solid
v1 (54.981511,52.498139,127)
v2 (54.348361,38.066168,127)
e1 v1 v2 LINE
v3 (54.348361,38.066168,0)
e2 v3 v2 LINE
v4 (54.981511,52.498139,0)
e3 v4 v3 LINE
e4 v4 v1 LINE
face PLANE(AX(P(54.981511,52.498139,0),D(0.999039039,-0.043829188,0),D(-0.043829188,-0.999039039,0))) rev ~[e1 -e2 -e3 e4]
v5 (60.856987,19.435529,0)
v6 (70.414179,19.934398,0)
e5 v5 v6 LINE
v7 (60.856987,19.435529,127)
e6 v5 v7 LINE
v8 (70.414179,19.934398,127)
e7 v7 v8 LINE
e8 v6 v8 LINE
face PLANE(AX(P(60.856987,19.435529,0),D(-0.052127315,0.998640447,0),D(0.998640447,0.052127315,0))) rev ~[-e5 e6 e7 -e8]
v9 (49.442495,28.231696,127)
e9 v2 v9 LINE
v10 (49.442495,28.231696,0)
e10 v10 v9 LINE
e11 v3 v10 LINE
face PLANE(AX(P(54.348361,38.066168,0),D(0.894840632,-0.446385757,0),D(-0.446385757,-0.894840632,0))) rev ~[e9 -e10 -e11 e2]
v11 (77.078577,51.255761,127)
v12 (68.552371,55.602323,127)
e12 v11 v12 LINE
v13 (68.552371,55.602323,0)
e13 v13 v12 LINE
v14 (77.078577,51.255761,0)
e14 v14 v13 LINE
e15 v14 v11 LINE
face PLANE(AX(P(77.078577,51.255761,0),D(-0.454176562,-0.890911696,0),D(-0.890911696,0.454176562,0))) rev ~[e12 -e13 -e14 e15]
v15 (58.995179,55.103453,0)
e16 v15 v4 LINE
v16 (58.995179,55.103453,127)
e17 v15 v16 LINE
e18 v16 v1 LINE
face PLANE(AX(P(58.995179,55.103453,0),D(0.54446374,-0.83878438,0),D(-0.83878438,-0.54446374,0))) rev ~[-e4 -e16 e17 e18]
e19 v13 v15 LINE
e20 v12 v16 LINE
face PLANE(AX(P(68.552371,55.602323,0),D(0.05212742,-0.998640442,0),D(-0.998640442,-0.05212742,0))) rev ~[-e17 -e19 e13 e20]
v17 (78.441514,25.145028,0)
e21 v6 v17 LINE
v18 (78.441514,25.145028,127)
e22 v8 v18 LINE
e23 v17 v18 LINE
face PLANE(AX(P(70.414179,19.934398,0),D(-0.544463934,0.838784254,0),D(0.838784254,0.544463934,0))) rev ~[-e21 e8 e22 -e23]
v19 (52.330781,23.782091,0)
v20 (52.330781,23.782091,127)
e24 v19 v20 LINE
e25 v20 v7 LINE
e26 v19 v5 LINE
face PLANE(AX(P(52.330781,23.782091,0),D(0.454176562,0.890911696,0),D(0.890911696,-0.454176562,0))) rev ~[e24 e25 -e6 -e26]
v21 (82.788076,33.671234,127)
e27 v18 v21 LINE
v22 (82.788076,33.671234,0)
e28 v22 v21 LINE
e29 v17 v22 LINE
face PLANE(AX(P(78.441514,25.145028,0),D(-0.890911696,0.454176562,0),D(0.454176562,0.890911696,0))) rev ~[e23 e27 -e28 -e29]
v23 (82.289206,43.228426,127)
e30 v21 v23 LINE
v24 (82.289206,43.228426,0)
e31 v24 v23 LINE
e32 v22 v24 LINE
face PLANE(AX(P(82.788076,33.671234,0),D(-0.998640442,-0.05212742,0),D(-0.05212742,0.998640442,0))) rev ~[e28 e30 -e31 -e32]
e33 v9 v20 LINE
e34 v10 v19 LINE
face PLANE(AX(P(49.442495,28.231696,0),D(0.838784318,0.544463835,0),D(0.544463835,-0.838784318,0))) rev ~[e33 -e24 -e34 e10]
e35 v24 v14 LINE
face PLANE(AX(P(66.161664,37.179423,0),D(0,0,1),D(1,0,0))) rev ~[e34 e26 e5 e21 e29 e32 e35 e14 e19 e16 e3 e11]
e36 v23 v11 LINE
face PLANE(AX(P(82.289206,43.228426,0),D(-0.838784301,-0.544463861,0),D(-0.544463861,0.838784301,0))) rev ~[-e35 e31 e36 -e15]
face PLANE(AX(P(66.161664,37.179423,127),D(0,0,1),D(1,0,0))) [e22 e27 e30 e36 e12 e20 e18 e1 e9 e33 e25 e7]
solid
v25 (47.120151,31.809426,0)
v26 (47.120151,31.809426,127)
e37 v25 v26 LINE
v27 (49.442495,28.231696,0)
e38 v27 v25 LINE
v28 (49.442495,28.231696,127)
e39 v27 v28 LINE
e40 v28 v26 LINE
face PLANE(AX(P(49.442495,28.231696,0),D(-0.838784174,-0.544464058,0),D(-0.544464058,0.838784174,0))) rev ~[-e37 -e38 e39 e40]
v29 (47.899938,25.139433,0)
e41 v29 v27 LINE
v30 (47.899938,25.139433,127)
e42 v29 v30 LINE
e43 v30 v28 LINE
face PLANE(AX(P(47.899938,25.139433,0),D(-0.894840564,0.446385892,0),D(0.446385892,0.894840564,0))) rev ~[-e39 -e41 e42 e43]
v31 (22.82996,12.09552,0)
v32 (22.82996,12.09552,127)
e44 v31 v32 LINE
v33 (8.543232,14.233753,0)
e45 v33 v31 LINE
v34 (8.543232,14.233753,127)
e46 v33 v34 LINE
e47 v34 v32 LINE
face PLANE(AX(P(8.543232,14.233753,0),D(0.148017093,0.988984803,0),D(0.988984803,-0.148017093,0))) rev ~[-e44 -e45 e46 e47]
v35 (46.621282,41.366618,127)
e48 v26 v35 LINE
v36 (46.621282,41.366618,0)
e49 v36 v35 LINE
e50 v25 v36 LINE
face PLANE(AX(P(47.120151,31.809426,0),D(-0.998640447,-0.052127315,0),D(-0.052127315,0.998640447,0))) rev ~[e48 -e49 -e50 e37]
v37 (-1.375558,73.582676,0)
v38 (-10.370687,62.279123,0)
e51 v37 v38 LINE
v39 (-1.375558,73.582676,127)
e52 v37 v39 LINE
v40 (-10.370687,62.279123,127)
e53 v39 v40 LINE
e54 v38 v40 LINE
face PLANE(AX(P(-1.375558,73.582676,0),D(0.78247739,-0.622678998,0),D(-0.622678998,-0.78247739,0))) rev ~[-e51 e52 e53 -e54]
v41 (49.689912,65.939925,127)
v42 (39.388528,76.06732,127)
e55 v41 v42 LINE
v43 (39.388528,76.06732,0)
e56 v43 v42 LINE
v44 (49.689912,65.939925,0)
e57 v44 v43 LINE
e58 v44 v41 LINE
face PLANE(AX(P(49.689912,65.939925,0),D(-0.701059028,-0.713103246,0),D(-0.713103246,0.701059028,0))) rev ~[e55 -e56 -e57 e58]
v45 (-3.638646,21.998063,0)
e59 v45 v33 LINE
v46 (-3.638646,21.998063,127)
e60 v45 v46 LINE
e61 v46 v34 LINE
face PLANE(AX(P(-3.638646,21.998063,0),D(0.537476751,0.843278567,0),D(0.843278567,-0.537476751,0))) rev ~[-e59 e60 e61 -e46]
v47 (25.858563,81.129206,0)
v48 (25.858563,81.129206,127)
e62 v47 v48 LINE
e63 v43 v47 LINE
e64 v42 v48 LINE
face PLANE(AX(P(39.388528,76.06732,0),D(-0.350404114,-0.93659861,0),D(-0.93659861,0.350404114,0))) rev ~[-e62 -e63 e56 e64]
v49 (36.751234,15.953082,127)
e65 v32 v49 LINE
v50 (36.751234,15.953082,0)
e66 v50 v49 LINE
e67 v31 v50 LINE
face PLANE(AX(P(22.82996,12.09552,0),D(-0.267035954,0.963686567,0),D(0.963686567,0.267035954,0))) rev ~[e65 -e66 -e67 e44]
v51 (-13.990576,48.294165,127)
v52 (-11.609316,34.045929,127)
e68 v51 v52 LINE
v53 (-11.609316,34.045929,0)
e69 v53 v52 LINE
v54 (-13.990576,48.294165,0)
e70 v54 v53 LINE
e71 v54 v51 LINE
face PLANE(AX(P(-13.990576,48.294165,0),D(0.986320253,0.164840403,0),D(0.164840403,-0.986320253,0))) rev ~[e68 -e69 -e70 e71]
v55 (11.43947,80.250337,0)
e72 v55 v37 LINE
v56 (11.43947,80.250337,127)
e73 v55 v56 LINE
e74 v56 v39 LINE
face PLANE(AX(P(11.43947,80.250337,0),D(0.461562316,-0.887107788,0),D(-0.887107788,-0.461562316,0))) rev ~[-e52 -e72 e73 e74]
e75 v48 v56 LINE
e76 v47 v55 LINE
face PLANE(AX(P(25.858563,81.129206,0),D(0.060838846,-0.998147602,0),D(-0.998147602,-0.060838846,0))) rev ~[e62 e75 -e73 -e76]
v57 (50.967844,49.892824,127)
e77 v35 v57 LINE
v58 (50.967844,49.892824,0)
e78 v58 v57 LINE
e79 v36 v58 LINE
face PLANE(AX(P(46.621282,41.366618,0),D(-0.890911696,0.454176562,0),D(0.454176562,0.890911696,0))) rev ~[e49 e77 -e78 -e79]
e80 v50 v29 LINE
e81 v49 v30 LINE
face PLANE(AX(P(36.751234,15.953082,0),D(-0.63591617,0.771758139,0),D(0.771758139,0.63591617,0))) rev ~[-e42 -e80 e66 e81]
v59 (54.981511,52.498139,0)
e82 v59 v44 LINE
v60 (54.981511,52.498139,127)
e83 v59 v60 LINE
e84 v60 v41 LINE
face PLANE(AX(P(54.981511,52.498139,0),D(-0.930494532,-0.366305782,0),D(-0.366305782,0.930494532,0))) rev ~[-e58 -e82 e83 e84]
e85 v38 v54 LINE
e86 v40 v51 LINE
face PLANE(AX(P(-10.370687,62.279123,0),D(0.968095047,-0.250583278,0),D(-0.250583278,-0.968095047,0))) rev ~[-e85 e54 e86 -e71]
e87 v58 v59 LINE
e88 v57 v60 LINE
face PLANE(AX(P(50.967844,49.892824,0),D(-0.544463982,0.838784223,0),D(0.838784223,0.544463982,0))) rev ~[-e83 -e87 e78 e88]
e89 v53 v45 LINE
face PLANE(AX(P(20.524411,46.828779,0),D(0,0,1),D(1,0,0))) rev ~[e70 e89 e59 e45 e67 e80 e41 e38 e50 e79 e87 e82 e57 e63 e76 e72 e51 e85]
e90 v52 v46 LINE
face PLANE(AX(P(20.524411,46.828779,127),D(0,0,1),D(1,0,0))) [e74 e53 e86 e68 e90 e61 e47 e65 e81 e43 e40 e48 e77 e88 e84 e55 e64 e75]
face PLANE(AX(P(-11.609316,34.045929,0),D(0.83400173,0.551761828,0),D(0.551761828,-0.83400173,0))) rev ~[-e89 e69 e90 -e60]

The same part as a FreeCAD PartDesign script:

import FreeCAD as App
import Part
import Sketcher
Q = App.Units.Quantity

doc = App.newDocument("Part")
body = doc.addObject("PartDesign::Body", "Body")
body.AllowCompound = True

sketch1 = body.newObject("Sketcher::SketchObject", "Sketch")
sketch1.AttachmentSupport = (doc.getObject("XY_Plane"), [""])
sketch1.MapMode = "FlatFace"
sketch1.addGeometry(Part.LineSegment(App.Vector(36.751234, 15.953082, 0), App.Vector(47.899938, 25.139433, 0)), False)
sketch1.addGeometry(Part.LineSegment(App.Vector(47.899938, 25.139433, 0), App.Vector(49.442495, 28.231696, 0)), False)
sketch1.addGeometry(Part.LineSegment(App.Vector(49.442495, 28.231696, 0), App.Vector(47.120151, 31.809426, 0)), False)
sketch1.addGeometry(Part.LineSegment(App.Vector(47.120151, 31.809426, 0), App.Vector(46.621282, 41.366618, 0)), False)
sketch1.addGeometry(Part.LineSegment(App.Vector(46.621282, 41.366618, 0), App.Vector(50.967844, 49.892824, 0)), False)
sketch1.addGeometry(Part.LineSegment(App.Vector(50.967844, 49.892824, 0), App.Vector(54.981511, 52.498139, 0)), False)
sketch1.addGeometry(Part.LineSegment(App.Vector(54.981511, 52.498139, 0), App.Vector(49.689912, 65.939925, 0)), False)
sketch1.addGeometry(Part.LineSegment(App.Vector(49.689912, 65.939925, 0), App.Vector(39.388528, 76.06732, 0)), False)
sketch1.addGeometry(Part.LineSegment(App.Vector(39.388528, 76.06732, 0), App.Vector(25.858563, 81.129206, 0)), False)
sketch1.addGeometry(Part.LineSegment(App.Vector(25.858563, 81.129206, 0), App.Vector(11.43947, 80.250337, 0)), False)
sketch1.addGeometry(Part.LineSegment(App.Vector(11.43947, 80.250337, 0), App.Vector(-1.375558, 73.582676, 0)), False)
sketch1.addGeometry(Part.LineSegment(App.Vector(-1.375558, 73.582676, 0), App.Vector(-10.370687, 62.279123, 0)), False)
sketch1.addGeometry(Part.LineSegment(App.Vector(-10.370687, 62.279123, 0), App.Vector(-13.990576, 48.294165, 0)), False)
sketch1.addGeometry(Part.LineSegment(App.Vector(-13.990576, 48.294165, 0), App.Vector(-11.609316, 34.045929, 0)), False)
sketch1.addGeometry(Part.LineSegment(App.Vector(-11.609316, 34.045929, 0), App.Vector(-3.638646, 21.998063, 0)), False)
sketch1.addGeometry(Part.LineSegment(App.Vector(-3.638646, 21.998063, 0), App.Vector(8.543232, 14.233753, 0)), False)
sketch1.addGeometry(Part.LineSegment(App.Vector(8.543232, 14.233753, 0), App.Vector(22.82996, 12.09552, 0)), False)
sketch1.addGeometry(Part.LineSegment(App.Vector(22.82996, 12.09552, 0), App.Vector(36.751234, 15.953082, 0)), False)
sketch1.addGeometry(Part.LineSegment(App.Vector(54.348361, 38.066168, 0), App.Vector(49.442495, 28.231696, 0)), False)
sketch1.addGeometry(Part.LineSegment(App.Vector(49.442495, 28.231696, 0), App.Vector(52.330781, 23.782091, 0)), False)
sketch1.addGeometry(Part.LineSegment(App.Vector(52.330781, 23.782091, 0), App.Vector(60.856987, 19.435529, 0)), False)
sketch1.addGeometry(Part.LineSegment(App.Vector(60.856987, 19.435529, 0), App.Vector(70.414179, 19.934398, 0)), False)
sketch1.addGeometry(Part.LineSegment(App.Vector(70.414179, 19.934398, 0), App.Vector(78.441514, 25.145028, 0)), False)
sketch1.addGeometry(Part.LineSegment(App.Vector(78.441514, 25.145028, 0), App.Vector(82.788076, 33.671234, 0)), False)
sketch1.addGeometry(Part.LineSegment(App.Vector(82.788076, 33.671234, 0), App.Vector(82.289206, 43.228426, 0)), False)
sketch1.addGeometry(Part.LineSegment(App.Vector(82.289206, 43.228426, 0), App.Vector(77.078577, 51.255761, 0)), False)
sketch1.addGeometry(Part.LineSegment(App.Vector(77.078577, 51.255761, 0), App.Vector(68.552371, 55.602323, 0)), False)
sketch1.addGeometry(Part.LineSegment(App.Vector(68.552371, 55.602323, 0), App.Vector(58.995179, 55.103453, 0)), False)
sketch1.addGeometry(Part.LineSegment(App.Vector(58.995179, 55.103453, 0), App.Vector(54.981511, 52.498139, 0)), False)
sketch1.addGeometry(Part.LineSegment(App.Vector(54.981511, 52.498139, 0), App.Vector(54.348361, 38.066168, 0)), False)
sketch1.addConstraint(Sketcher.Constraint("Coincident", 0, 2, 1, 1))
sketch1.addConstraint(Sketcher.Constraint("Coincident", 1, 2, 2, 1))
sketch1.addConstraint(Sketcher.Constraint("Coincident", 2, 2, 3, 1))
sketch1.addConstraint(Sketcher.Constraint("Coincident", 3, 2, 4, 1))
sketch1.addConstraint(Sketcher.Constraint("Coincident", 4, 2, 5, 1))
sketch1.addConstraint(Sketcher.Constraint("Coincident", 5, 2, 6, 1))
sketch1.addConstraint(Sketcher.Constraint("Coincident", 6, 2, 7, 1))
sketch1.addConstraint(Sketcher.Constraint("Coincident", 7, 2, 8, 1))
sketch1.addConstraint(Sketcher.Constraint("Coincident", 8, 2, 9, 1))
sketch1.addConstraint(Sketcher.Constraint("Coincident", 9, 2, 10, 1))
sketch1.addConstraint(Sketcher.Constraint("Coincident", 10, 2, 11, 1))
sketch1.addConstraint(Sketcher.Constraint("Coincident", 11, 2, 12, 1))
sketch1.addConstraint(Sketcher.Constraint("Coincident", 12, 2, 13, 1))
sketch1.addConstraint(Sketcher.Constraint("Coincident", 13, 2, 14, 1))
sketch1.addConstraint(Sketcher.Constraint("Coincident", 14, 2, 15, 1))
sketch1.addConstraint(Sketcher.Constraint("Coincident", 15, 2, 16, 1))
sketch1.addConstraint(Sketcher.Constraint("Coincident", 16, 2, 17, 1))
sketch1.addConstraint(Sketcher.Constraint("Coincident", 17, 2, 0, 1))
sketch1.addConstraint(Sketcher.Constraint("Coincident", 18, 2, 19, 1))
sketch1.addConstraint(Sketcher.Constraint("Coincident", 19, 2, 20, 1))
sketch1.addConstraint(Sketcher.Constraint("Coincident", 20, 2, 21, 1))
sketch1.addConstraint(Sketcher.Constraint("Coincident", 21, 2, 22, 1))
sketch1.addConstraint(Sketcher.Constraint("Coincident", 22, 2, 23, 1))
sketch1.addConstraint(Sketcher.Constraint("Coincident", 23, 2, 24, 1))
sketch1.addConstraint(Sketcher.Constraint("Coincident", 24, 2, 25, 1))
sketch1.addConstraint(Sketcher.Constraint("Coincident", 25, 2, 26, 1))
sketch1.addConstraint(Sketcher.Constraint("Coincident", 26, 2, 27, 1))
sketch1.addConstraint(Sketcher.Constraint("Coincident", 27, 2, 28, 1))
sketch1.addConstraint(Sketcher.Constraint("Coincident", 28, 2, 29, 1))
sketch1.addConstraint(Sketcher.Constraint("Coincident", 29, 2, 18, 1))
sketch1.addConstraint(Sketcher.Constraint("Coincident", 18, 2, 1, 2))
sketch1.addConstraint(Sketcher.Constraint("Coincident", 28, 2, 5, 2))
sketch1.addConstraint(Sketcher.Constraint("Distance", 5, 4.785101))
sketch1.addConstraint(Sketcher.Constraint("Distance", 25, 9.570202))
sketch1.addConstraint(Sketcher.Constraint("Distance", 28, 4.785101))
sketch1.addConstraint(Sketcher.Constraint("DistanceY", -1, 1, 21, 2, 19.934398))
sketch1.addConstraint(Sketcher.Constraint("DistanceX", 6, 2, 5, 2, 5.291599))
sketch1.addConstraint(Sketcher.Constraint("DistanceY", 4, 2, 6, 2, 16.047101))
sketch1.addConstraint(Sketcher.Constraint("DistanceY", 2, 2, 6, 2, 34.130499))
sketch1.addConstraint(Sketcher.Constraint("DistanceY", 3, 2, 7, 2, 34.700702))
sketch1.addConstraint(Sketcher.Constraint("DistanceY", 5, 2, 9, 2, 27.752198))
sketch1.addConstraint(Sketcher.Constraint("DistanceX", 10, 2, 4, 2, 52.343402))
sketch1.addConstraint(Sketcher.Constraint("DistanceX", 11, 2, 6, 2, 60.060599))
sketch1.addConstraint(Sketcher.Constraint("DistanceX", 19, 2, 21, 2, 18.083398))
sketch1.addConstraint(Sketcher.Constraint("DistanceY", 20, 2, 22, 2, 5.709499))
sketch1.addConstraint(Sketcher.Constraint("DistanceX", 25, 2, 23, 2, 5.709499))
sketch1.addConstraint(Sketcher.Constraint("DistanceY", 4, 2, 26, 2, 5.709499))
sketch1.addConstraint(Sketcher.Constraint("Distance", 1, 3.455658))
sketch1.addConstraint(Sketcher.Constraint("Distance", 6, 14.445852))
sketch1.addConstraint(Sketcher.Constraint("Distance", 13, 14.445852))
sketch1.addConstraint(Sketcher.Constraint("Distance", 16, 14.445852))
sketch1.addConstraint(Sketcher.Constraint("DistanceX", -1, 1, 2, 2, 47.120151))
sketch1.addConstraint(Sketcher.Constraint("DistanceY", -1, 1, 3, 2, 41.366618))
sketch1.addConstraint(Sketcher.Constraint("DistanceX", -1, 1, 5, 2, 54.981511))
sketch1.addConstraint(Sketcher.Constraint("DistanceY", -1, 1, 5, 2, 52.498139))
sketch1.addConstraint(Sketcher.Constraint("DistanceX", -1, 1, 9, 2, 11.43947))
sketch1.addConstraint(Sketcher.Constraint("DistanceY", -1, 1, 13, 2, 34.045929))
sketch1.addConstraint(Sketcher.Constraint("DistanceX", -1, 1, 16, 2, 22.82996))
sketch1.addConstraint(Sketcher.Constraint("DistanceY", -1, 1, 16, 2, 12.09552))
sketch1.addConstraint(Sketcher.Constraint("DistanceX", -1, 1, 19, 2, 52.330781))
sketch1.addConstraint(Sketcher.Constraint("DistanceY", -1, 1, 19, 2, 23.782091))
sketch1.addConstraint(Sketcher.Constraint("DistanceY", -1, 1, 20, 2, 19.435529))
sketch1.addConstraint(Sketcher.Constraint("DistanceY", -1, 1, 25, 2, 51.255761))
sketch1.addConstraint(Sketcher.Constraint("DistanceX", -1, 1, 26, 2, 68.552371))
sketch1.addConstraint(Sketcher.Constraint("DistanceX", -1, 1, 27, 2, 58.995179))
sketch1.addConstraint(Sketcher.Constraint("DistanceX", -1, 1, 29, 2, 54.348361))
sketch1.addConstraint(Sketcher.Constraint("DistanceY", 1, 2, 2, 2, 3.57773))
sketch1.addConstraint(Sketcher.Constraint("DistanceX", 3, 2, 2, 2, 0.498869))
sketch1.addConstraint(Sketcher.Constraint("DistanceX", 1, 2, 4, 2, 1.525349))
sketch1.addConstraint(Sketcher.Constraint("DistanceY", 0, 2, 4, 2, 24.753391))
sketch1.addConstraint(Sketcher.Constraint("DistanceX", 8, 2, 6, 2, 23.831349))
sketch1.addConstraint(Sketcher.Constraint("DistanceY", 6, 2, 8, 2, 15.189281))
sketch1.addConstraint(Sketcher.Constraint("DistanceX", 9, 2, 7, 2, 27.949058))
sketch1.addConstraint(Sketcher.Constraint("DistanceY", 10, 2, 9, 2, 6.667661))
sketch1.addConstraint(Sketcher.Constraint("DistanceX", 12, 2, 11, 2, 3.619889))
sketch1.addConstraint(Sketcher.Constraint("DistanceY", 12, 2, 10, 2, 25.288511))
sketch1.addConstraint(Sketcher.Constraint("DistanceX", 13, 2, 14, 2, 7.97067))
sketch1.addConstraint(Sketcher.Constraint("DistanceY", 14, 2, 11, 2, 40.28106))
sketch1.addConstraint(Sketcher.Constraint("DistanceY", 14, 2, 0, 2, 3.14137))
sketch1.addConstraint(Sketcher.Constraint("DistanceY", 15, 2, 14, 2, 7.76431))
sketch1.addConstraint(Sketcher.Constraint("DistanceY", 17, 2, 0, 2, 9.186351))
sketch1.addConstraint(Sketcher.Constraint("DistanceX", 17, 2, 1, 2, 12.691261))
sketch1.addConstraint(Sketcher.Constraint("DistanceX", 0, 2, 20, 2, 12.957049))
sketch1.addConstraint(Sketcher.Constraint("DistanceX", 1, 2, 22, 2, 28.999019))
sketch1.addConstraint(Sketcher.Constraint("DistanceX", 20, 2, 23, 2, 21.931089))
sketch1.addConstraint(Sketcher.Constraint("DistanceX", 24, 2, 23, 2, 0.49887))
sketch1.addConstraint(Sketcher.Constraint("DistanceY", 29, 2, 3, 2, 3.30045))
sketch1.addConstraint(Sketcher.Constraint("Distance", 23, 9.570203))
pad1 = body.newObject("PartDesign::Pad", "Pad")
pad1.Profile = sketch1
pad1.Length = Q("5 in")

doc.recompute()
